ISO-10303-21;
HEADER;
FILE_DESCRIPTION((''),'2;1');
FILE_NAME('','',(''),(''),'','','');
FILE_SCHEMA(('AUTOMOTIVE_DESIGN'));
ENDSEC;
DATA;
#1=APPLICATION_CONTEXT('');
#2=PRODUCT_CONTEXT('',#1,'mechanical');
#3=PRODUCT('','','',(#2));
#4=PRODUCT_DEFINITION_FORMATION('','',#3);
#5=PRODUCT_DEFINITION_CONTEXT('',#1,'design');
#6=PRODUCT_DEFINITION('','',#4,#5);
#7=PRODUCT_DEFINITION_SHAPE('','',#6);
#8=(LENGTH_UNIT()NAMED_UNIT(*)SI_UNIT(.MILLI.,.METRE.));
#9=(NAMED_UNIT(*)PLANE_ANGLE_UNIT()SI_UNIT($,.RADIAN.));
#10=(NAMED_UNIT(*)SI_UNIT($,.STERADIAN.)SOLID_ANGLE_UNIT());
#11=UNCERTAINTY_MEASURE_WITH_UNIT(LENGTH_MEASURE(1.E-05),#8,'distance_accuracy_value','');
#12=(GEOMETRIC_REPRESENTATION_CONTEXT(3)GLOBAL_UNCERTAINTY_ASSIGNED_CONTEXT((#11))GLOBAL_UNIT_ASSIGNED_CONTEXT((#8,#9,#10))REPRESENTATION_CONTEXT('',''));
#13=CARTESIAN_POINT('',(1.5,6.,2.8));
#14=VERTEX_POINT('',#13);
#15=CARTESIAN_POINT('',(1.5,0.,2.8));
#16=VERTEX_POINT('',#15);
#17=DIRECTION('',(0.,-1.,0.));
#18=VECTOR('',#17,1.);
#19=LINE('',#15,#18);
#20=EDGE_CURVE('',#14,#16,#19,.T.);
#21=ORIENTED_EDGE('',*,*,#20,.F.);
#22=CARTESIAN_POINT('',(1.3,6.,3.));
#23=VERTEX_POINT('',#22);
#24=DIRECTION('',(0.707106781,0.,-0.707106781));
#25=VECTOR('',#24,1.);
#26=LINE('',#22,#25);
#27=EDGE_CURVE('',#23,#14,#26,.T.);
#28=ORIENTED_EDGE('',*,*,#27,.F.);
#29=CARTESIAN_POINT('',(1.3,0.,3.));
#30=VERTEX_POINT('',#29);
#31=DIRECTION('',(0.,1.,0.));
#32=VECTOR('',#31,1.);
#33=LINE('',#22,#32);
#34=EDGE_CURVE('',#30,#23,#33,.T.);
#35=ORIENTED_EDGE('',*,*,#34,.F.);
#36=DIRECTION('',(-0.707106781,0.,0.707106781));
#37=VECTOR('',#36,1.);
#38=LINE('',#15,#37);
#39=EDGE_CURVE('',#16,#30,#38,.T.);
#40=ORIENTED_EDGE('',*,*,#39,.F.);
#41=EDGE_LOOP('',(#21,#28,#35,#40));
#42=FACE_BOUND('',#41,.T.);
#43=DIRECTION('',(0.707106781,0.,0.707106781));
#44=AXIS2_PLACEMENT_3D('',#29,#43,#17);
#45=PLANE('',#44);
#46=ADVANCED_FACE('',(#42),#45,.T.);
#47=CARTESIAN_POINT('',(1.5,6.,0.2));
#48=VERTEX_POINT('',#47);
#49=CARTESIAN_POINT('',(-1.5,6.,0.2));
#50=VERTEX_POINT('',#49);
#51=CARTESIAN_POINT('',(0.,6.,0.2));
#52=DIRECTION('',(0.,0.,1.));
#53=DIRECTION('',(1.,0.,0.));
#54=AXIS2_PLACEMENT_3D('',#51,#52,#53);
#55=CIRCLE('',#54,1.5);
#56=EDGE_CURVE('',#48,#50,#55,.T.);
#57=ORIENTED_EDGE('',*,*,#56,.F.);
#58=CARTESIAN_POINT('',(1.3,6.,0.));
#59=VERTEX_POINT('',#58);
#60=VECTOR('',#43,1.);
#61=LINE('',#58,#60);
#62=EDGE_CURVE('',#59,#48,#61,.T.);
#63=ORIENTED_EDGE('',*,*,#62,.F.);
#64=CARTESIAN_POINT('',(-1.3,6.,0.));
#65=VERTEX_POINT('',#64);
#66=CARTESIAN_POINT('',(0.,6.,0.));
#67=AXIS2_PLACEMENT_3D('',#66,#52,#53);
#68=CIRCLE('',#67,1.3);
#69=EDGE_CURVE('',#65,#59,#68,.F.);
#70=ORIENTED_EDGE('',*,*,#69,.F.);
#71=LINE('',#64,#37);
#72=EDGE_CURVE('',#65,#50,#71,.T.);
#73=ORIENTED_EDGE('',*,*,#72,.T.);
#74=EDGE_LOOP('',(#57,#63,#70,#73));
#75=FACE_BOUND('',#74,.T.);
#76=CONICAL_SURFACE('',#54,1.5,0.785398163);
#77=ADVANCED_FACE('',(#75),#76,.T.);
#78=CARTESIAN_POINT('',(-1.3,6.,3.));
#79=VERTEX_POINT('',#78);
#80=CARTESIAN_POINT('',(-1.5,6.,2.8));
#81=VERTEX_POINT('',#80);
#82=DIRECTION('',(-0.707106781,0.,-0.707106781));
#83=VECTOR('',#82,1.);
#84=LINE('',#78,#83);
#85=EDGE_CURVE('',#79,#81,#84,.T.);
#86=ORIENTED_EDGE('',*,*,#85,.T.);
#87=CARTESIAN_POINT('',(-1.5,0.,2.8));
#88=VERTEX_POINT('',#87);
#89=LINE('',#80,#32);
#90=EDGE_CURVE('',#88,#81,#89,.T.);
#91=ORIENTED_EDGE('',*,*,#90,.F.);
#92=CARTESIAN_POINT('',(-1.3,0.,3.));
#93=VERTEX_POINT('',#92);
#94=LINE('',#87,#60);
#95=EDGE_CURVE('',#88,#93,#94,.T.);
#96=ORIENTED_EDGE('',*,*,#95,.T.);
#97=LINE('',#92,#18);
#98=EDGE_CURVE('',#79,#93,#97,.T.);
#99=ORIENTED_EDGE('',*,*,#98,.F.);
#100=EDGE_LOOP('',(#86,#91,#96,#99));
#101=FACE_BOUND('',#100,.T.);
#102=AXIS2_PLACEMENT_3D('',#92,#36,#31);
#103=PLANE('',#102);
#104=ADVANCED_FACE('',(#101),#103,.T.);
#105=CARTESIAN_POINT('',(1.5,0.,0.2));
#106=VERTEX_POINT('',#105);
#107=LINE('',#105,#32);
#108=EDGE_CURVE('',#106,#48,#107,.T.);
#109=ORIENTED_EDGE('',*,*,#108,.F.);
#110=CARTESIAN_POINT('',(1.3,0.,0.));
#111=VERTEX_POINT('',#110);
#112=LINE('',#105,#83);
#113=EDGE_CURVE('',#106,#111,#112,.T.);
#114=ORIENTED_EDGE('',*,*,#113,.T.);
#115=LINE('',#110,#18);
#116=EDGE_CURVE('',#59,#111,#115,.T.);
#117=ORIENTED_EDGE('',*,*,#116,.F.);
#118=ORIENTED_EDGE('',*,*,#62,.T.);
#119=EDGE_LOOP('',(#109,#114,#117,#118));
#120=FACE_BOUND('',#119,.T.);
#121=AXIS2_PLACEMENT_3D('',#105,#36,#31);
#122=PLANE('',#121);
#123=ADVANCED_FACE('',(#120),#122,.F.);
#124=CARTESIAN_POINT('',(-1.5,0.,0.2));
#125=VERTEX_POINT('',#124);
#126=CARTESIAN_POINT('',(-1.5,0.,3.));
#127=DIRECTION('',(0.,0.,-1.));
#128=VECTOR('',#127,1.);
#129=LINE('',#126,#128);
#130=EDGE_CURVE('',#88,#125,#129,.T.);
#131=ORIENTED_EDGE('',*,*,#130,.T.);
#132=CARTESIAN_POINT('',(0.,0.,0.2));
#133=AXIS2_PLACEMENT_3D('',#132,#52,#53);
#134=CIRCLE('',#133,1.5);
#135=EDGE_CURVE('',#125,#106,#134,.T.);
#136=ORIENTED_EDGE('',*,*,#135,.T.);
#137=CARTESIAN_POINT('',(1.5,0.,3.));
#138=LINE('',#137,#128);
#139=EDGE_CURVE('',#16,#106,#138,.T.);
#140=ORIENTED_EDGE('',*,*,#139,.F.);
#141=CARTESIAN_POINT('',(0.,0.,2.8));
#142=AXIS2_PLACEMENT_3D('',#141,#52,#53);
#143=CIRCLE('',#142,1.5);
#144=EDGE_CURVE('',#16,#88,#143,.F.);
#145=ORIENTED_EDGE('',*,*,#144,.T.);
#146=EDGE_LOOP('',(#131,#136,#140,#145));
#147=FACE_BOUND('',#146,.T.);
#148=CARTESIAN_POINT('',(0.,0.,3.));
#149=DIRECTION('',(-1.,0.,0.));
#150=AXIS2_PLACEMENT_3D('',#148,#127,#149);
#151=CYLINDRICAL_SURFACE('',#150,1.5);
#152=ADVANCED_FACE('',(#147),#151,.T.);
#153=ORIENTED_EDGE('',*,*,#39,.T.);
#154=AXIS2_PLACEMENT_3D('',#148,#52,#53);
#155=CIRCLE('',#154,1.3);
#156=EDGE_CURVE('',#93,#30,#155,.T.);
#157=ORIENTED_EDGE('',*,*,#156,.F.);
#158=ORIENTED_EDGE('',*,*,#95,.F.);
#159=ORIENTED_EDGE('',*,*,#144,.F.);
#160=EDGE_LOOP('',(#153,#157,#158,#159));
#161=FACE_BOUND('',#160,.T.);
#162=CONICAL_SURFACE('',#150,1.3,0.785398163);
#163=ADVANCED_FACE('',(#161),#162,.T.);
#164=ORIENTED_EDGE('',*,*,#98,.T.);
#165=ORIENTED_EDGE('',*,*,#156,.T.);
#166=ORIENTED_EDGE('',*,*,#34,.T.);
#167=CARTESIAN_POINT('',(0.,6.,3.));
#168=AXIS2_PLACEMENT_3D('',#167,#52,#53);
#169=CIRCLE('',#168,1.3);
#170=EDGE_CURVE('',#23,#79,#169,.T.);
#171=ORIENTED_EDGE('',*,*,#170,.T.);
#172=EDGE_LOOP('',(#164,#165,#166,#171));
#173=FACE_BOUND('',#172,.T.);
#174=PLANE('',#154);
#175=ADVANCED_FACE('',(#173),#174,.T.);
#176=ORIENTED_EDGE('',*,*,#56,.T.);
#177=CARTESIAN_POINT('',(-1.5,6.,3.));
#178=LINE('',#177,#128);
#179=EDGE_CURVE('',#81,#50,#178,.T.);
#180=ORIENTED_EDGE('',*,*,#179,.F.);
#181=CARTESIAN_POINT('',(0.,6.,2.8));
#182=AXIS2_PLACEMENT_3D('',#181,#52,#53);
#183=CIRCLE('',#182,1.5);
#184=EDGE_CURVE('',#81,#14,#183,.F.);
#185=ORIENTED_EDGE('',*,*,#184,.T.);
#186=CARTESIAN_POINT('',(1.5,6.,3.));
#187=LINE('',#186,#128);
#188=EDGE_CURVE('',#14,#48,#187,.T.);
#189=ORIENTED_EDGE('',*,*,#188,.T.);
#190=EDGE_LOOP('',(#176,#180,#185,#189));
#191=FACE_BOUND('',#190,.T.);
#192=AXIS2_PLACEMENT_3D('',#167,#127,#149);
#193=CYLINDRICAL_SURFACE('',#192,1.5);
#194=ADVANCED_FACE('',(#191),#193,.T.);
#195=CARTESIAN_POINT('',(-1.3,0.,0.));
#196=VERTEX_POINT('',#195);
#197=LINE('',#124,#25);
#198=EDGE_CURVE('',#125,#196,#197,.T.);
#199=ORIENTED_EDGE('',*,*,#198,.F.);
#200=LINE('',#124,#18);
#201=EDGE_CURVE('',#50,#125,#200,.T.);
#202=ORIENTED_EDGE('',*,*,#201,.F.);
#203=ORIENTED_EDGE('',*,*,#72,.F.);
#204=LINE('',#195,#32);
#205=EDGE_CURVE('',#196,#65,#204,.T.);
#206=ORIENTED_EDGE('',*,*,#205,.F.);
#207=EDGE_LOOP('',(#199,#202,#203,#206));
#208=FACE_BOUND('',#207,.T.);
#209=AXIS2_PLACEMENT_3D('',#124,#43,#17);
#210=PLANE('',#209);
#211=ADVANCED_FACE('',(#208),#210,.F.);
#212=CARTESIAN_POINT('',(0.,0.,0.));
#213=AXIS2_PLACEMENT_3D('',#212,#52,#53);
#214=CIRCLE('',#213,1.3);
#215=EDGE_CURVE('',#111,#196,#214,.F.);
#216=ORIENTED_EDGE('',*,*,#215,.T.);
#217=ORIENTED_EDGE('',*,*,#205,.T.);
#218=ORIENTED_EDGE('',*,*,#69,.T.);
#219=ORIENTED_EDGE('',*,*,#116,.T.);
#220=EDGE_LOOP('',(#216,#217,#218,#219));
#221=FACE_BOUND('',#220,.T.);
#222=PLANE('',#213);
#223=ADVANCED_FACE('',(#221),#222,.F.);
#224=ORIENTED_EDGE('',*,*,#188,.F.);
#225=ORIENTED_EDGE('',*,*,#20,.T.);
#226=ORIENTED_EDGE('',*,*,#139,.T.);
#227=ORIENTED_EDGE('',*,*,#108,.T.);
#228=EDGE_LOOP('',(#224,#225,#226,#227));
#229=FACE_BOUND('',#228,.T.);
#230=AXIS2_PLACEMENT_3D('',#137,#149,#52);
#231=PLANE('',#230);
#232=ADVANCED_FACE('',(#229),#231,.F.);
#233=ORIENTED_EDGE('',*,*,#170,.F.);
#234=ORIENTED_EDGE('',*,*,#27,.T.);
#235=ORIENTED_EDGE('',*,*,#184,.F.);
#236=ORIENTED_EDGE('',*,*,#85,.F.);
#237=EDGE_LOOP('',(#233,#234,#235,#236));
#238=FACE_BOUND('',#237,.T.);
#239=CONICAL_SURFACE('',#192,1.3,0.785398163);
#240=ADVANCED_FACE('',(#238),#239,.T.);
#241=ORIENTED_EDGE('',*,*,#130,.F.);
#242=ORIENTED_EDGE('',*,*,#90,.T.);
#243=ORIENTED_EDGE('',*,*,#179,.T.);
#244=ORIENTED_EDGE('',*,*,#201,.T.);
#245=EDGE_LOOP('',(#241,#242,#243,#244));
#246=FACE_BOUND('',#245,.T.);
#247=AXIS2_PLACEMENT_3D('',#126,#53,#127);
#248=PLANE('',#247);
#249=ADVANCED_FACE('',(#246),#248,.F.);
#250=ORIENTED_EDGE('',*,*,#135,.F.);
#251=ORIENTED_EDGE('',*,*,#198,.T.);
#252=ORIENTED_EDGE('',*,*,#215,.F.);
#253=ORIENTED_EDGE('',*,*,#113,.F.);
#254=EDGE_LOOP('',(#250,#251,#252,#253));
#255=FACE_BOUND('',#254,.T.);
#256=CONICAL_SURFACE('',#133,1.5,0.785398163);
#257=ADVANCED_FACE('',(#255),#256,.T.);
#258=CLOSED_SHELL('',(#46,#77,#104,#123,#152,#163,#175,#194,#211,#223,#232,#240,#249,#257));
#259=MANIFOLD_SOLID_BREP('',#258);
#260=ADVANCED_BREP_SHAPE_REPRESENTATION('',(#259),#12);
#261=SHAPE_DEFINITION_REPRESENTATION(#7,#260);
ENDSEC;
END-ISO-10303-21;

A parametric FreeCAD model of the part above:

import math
import FreeCAD as App
import Part
import Sketcher
from FreeCAD import Vector
Q = App.Units.Quantity


def edges_at(feature, points):
    """Names of the edges that pass closest to the given points."""
    edges = feature.Shape.Edges
    near = lambda p: min(range(len(edges)), key=lambda i: edges[i].distToShape(Part.Vertex(*p))[0])
    return sorted({f"Edge{near(p) + 1}" for p in points})

doc = App.newDocument("Part")
body = doc.addObject("PartDesign::Body", "Body")

# Sketch on XY plane
sketch1 = body.newObject("Sketcher::SketchObject", "Sketch")
sketch1.AttachmentSupport = (doc.getObject("XY_Plane"), [""])
sketch1.MapMode = "FlatFace"
sketch1.addGeometry([
    Part.LineSegment(Vector(-1.5, 6, 0), Vector(-1.5, 0, 0)),
    Part.ArcOfCircle(Part.Circle(Vector(0, 0, 0), Vector(0, 0, 1), 1.5), math.radians(180), math.radians(360)),
    Part.LineSegment(Vector(1.5, 0, 0), Vector(1.5, 6, 0)),
    Part.ArcOfCircle(Part.Circle(Vector(0, 6, 0), Vector(0, 0, 1), 1.5), math.radians(0), math.radians(180)),
], False)
sketch1.addConstraint([
    Sketcher.Constraint("Tangent", 0, 2, 1, 1),
    Sketcher.Constraint("Tangent", 1, 2, 2, 1),
    Sketcher.Constraint("Tangent", 2, 2, 3, 1),
    Sketcher.Constraint("Tangent", 3, 2, 0, 1),
    Sketcher.Constraint("Vertical", 0),
    Sketcher.Constraint("Vertical", 2),
    Sketcher.Constraint("Coincident", 1, 3, -1, 1),
    Sketcher.Constraint("Radius", 1, Q("1.5 mm")),
    Sketcher.Constraint("DistanceY", 0, 2, 0, 1, Q("6 mm")),
])
pad1 = body.newObject("PartDesign::Pad", "Pad")
pad1.Profile = sketch1
pad1.Length = 3
doc.recompute()

chamfer = body.newObject("PartDesign::Chamfer", "Chamfer")
chamfer.Base = (pad1, edges_at(pad1, [
    (0, 7.5, 3),
    (-1.5, 3, 3),
    (0, -1.5, 3),
    (-1.5, 3, 0),
    (0, 7.5, 0),
    (1.5, 3, 0),
    (0, -1.5, 0),
    (1.5, 3, 3),
]))
chamfer.Size = 0.2

doc.recompute()
